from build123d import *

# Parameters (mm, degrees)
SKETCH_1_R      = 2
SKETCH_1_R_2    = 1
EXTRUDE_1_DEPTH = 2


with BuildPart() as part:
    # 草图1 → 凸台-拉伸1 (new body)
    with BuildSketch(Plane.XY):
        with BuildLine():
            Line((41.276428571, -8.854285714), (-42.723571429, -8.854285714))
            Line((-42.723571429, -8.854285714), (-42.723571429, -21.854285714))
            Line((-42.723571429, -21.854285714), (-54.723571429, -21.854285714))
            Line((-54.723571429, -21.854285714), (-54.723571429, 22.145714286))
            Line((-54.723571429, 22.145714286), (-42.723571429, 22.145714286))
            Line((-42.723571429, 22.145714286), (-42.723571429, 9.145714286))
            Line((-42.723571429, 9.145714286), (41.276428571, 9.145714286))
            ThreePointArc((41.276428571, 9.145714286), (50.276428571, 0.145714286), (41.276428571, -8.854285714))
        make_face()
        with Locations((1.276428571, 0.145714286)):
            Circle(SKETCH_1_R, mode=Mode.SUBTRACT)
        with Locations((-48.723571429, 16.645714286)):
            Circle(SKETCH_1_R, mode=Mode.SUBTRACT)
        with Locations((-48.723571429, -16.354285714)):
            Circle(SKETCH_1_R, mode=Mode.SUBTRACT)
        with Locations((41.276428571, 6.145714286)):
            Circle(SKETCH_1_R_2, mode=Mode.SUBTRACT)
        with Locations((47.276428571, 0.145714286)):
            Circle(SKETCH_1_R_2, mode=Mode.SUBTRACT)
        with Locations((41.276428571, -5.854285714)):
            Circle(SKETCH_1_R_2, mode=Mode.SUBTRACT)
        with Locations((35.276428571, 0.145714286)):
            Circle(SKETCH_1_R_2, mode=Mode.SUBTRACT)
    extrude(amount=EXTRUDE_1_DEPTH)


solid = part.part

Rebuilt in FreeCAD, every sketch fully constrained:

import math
import FreeCAD as App
import Part
import Sketcher
from FreeCAD import Vector
Q = App.Units.Quantity

doc = App.newDocument("Part")
params = doc.addObject("Spreadsheet::Sheet", "Params")
for row, (alias, value) in enumerate([
    ("sketch1_diameter", "2 mm"),
    ("sketch1_diameter2", "4 mm"),
    ("sketch1_radius", "9 mm"),
    ("sketch1_width", "84 mm"),
    ("sketch1_width2", "12 mm"),
    ("pad1_length", "2 mm"),
], start=1):
    params.set(f"A{row}", alias)
    params.set(f"B{row}", "=" + value)
    params.setAlias(f"B{row}", alias)

body = doc.addObject("PartDesign::Body", "Body")

sketch1 = body.newObject("Sketcher::SketchObject", "Sketch")
sketch1.AttachmentSupport = (doc.getObject("XY_Plane"), [""])
sketch1.MapMode = "FlatFace"
sketch1.addGeometry([
    Part.LineSegment(Vector(-42.723571, -8.854286, 0), Vector(41.276429, -8.854286, 0)),
    Part.ArcOfCircle(Part.Circle(Vector(41.276429, 0.145714, 0), Vector(0, 0, 1), 9), math.radians(-90), math.radians(90)),
    Part.LineSegment(Vector(41.276429, 9.145714, 0), Vector(-42.723571, 9.145714, 0)),
    Part.LineSegment(Vector(-42.723571, 9.145714, 0), Vector(-42.723571, 22.145714, 0)),
    Part.LineSegment(Vector(-42.723571, 22.145714, 0), Vector(-54.723571, 22.145714, 0)),
    Part.LineSegment(Vector(-54.723571, 22.145714, 0), Vector(-54.723571, -21.854286, 0)),
    Part.LineSegment(Vector(-54.723571, -21.854286, 0), Vector(-42.723571, -21.854286, 0)),
    Part.LineSegment(Vector(-42.723571, -21.854286, 0), Vector(-42.723571, -8.854286, 0)),
    Part.Circle(Vector(41.276429, -5.854286, 0), Vector(0, 0, 1), 1),
    Part.Circle(Vector(-48.723571, -16.354286, 0), Vector(0, 0, 1), 2),
    Part.Circle(Vector(47.276429, 0.145714, 0), Vector(0, 0, 1), 1),
    Part.Circle(Vector(35.276429, 0.145714, 0), Vector(0, 0, 1), 1),
    Part.Circle(Vector(41.276429, 6.145714, 0), Vector(0, 0, 1), 1),
    Part.Circle(Vector(1.276429, 0.145714, 0), Vector(0, 0, 1), 2),
    Part.Circle(Vector(-48.723571, 16.645714, 0), Vector(0, 0, 1), 2),
], False)
sketch1.addConstraint([
    Sketcher.Constraint("Tangent", 0, 2, 1, 1),
    Sketcher.Constraint("Tangent", 1, 2, 2, 1),
    Sketcher.Constraint("Coincident", 2, 2, 3, 1),
    Sketcher.Constraint("Coincident", 3, 2, 4, 1),
    Sketcher.Constraint("Coincident", 4, 2, 5, 1),
    Sketcher.Constraint("Coincident", 5, 2, 6, 1),
    Sketcher.Constraint("Coincident", 6, 2, 7, 1),
    Sketcher.Constraint("Coincident", 7, 2, 0, 1),
    Sketcher.Constraint("Horizontal", 0),
    Sketcher.Constraint("Horizontal", 2),
    Sketcher.Constraint("Vertical", 3),
    Sketcher.Constraint("Horizontal", 4),
    Sketcher.Constraint("Vertical", 5),
    Sketcher.Constraint("Horizontal", 6),
    Sketcher.Constraint("Vertical", 7),
    Sketcher.Constraint("Equal", 8, 10),
    Sketcher.Constraint("Equal", 10, 11),
    Sketcher.Constraint("Equal", 11, 12),
    Sketcher.Constraint("Equal", 9, 13),
    Sketcher.Constraint("Equal", 13, 14),
    Sketcher.Constraint("Horizontal", 1, 3, 10, 3),
    Sketcher.Constraint("Horizontal", 10, 3, 11, 3),
    Sketcher.Constraint("Horizontal", 11, 3, 13, 3),
    Sketcher.Constraint("Vertical", 1, 3, 8, 3),
    Sketcher.Constraint("Vertical", 8, 3, 12, 3),
    Sketcher.Constraint("Vertical", 9, 3, 14, 3),
    Sketcher.Constraint("Vertical", 3, 2, 6, 2),
    Sketcher.Constraint("Equal", 3, 7),
    Sketcher.Constraint("Diameter", 8, Q("2 mm")),
    Sketcher.Constraint("Diameter", 9, Q("4 mm")),
    Sketcher.Constraint("Radius", 1, Q("9 mm")),
    Sketcher.Constraint("DistanceX", 0, 1, 0, 2, Q("84 mm")),
    Sketcher.Constraint("DistanceX", 4, 2, 4, 1, Q("12 mm")),
    Sketcher.Constraint("DistanceY", 3, 1, 3, 2, Q("13 mm")),
    Sketcher.Constraint("DistanceY", 8, 3, 1, 3, Q("6 mm")),
    Sketcher.Constraint("DistanceX", 9, 3, 8, 3, Q("90 mm")),
    Sketcher.Constraint("DistanceX", 1, 3, 10, 3, Q("6 mm")),
    Sketcher.Constraint("DistanceX", 11, 3, 1, 3, Q("6 mm")),
    Sketcher.Constraint("DistanceY", 1, 3, 12, 3, Q("6 mm")),
    Sketcher.Constraint("DistanceX", 13, 3, 11, 3, Q("34 mm")),
    Sketcher.Constraint("DistanceY", 9, 3, 14, 3, Q("33 mm")),
    Sketcher.Constraint("DistanceY", 9, 3, 8, 3, Q("10.5 mm")),
    Sketcher.Constraint("DistanceX", -1, 1, 1, 3, Q("41.276429 mm")),
    Sketcher.Constraint("DistanceY", -1, 1, 1, 3, Q("0.145714 mm")),
])
sketch1.setExpression("Constraints[28]", "Params.sketch1_diameter")
sketch1.setExpression("Constraints[29]", "Params.sketch1_diameter2")
sketch1.setExpression("Constraints[30]", "Params.sketch1_radius")
sketch1.setExpression("Constraints[31]", "Params.sketch1_width")
sketch1.setExpression("Constraints[32]", "Params.sketch1_width2")
pad1 = body.newObject("PartDesign::Pad", "Pad")
pad1.Profile = sketch1
pad1.setExpression("Length", "Params.pad1_length")

doc.recompute()
